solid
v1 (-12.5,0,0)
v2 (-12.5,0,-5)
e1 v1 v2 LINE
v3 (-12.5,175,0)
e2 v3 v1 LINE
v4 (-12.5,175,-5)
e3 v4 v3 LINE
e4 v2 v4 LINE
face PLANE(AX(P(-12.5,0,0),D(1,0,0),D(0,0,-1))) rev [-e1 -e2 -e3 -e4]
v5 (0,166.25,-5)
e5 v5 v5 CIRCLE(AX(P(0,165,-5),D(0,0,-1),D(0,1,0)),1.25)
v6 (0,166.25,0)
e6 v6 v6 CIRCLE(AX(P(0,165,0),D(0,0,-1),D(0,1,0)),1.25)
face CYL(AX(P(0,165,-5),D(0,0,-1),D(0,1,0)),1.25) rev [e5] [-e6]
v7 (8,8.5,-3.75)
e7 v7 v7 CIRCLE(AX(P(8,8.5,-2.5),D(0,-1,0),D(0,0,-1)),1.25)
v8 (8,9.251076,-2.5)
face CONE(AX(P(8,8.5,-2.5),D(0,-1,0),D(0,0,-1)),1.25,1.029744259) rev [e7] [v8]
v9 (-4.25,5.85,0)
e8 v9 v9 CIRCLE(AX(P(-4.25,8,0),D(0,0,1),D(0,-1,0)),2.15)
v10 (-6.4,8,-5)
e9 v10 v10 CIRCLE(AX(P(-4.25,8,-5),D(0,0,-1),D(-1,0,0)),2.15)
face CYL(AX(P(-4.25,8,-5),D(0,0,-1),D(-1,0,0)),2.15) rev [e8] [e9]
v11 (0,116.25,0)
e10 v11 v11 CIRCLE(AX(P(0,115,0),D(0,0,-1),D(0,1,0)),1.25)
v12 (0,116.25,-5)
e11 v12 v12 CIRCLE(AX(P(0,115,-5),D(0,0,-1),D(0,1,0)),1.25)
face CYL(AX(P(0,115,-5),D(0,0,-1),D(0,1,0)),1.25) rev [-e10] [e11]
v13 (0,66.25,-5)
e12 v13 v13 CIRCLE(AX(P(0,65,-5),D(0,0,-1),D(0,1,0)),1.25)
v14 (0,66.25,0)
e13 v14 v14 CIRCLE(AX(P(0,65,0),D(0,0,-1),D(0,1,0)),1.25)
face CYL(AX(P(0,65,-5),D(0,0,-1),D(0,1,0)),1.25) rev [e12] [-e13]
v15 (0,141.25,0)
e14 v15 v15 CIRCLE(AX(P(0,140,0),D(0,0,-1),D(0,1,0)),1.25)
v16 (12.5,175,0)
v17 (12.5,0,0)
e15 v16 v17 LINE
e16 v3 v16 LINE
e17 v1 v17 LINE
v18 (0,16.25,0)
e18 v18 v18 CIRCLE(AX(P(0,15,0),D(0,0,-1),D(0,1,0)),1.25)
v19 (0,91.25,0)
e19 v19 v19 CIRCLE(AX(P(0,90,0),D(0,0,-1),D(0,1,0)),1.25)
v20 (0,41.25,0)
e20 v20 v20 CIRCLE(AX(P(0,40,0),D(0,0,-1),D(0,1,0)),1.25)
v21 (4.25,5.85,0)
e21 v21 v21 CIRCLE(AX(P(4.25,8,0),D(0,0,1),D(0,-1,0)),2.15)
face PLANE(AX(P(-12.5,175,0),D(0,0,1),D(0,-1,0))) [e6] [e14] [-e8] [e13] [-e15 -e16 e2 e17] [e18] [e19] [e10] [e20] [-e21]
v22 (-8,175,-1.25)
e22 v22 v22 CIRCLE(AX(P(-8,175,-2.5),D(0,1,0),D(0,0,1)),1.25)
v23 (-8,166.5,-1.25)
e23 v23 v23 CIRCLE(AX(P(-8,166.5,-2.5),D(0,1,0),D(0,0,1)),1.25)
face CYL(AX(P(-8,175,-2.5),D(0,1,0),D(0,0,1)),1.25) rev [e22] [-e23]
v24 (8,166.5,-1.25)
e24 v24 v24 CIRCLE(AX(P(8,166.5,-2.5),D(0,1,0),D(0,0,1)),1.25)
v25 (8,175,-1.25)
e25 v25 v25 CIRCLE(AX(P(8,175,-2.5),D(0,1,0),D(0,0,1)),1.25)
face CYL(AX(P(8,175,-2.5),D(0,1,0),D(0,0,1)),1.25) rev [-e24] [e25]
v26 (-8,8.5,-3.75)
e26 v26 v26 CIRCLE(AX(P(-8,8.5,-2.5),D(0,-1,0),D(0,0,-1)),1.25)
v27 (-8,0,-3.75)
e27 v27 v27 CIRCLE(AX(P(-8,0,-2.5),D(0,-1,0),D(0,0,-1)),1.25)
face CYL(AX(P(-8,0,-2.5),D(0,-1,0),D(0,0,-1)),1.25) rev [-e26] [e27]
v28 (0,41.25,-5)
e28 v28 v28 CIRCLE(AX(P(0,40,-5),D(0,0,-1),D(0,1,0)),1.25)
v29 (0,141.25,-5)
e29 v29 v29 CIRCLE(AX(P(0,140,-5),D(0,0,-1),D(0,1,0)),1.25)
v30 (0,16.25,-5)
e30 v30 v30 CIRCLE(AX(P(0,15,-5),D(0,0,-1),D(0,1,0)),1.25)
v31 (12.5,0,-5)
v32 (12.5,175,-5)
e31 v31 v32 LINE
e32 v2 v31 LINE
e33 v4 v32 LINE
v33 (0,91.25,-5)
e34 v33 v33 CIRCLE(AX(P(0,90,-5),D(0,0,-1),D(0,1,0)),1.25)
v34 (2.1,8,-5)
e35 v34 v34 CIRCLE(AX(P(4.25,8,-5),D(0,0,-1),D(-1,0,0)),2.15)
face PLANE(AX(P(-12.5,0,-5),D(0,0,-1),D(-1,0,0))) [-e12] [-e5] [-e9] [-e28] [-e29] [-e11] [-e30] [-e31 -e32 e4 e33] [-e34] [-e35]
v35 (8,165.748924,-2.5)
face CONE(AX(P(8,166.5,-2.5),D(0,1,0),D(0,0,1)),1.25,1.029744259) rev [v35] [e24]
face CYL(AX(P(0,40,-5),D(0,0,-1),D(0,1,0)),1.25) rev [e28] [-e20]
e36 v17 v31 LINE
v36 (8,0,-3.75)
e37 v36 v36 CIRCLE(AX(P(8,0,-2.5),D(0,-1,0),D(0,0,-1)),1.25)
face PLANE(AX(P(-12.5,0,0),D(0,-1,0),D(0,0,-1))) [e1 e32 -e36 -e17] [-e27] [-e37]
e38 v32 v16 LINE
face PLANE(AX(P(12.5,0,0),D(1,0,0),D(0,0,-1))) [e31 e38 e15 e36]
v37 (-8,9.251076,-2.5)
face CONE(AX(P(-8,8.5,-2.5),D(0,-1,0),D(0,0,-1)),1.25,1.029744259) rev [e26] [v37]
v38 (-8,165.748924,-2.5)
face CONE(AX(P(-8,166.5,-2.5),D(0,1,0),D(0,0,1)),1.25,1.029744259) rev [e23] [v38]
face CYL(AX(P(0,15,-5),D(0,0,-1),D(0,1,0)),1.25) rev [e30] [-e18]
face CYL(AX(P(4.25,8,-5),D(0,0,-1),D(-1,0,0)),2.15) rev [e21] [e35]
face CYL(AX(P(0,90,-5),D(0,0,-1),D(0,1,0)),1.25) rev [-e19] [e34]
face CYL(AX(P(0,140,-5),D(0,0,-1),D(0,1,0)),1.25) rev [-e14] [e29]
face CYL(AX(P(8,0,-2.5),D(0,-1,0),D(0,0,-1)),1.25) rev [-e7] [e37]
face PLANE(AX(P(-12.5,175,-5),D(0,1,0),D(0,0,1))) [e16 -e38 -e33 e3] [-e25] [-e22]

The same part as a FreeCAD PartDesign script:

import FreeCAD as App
import Part
import Sketcher

V = App.Vector
Q = App.Units.Quantity


def add_polygon(sketch, points):
    """Adds a closed chain of lines whose ends are joined by coincident constraints."""
    first, n = sketch.GeometryCount, len(points)
    for a, b in zip(points, points[1:] + points[:1]):
        sketch.addGeometry(Part.LineSegment(App.Vector(*a, 0), App.Vector(*b, 0)), False)
    for i in range(n):
        sketch.addConstraint(Sketcher.Constraint("Coincident", first + i, 2, first + (i + 1) % n, 1))

doc = App.newDocument("Part")
params = doc.addObject("Spreadsheet::Sheet", "Params")
for row, (alias, value) in enumerate([
    ("sketch1_width", "175 mm"),
    ("sketch1_height", "5 mm"),
    ("pad1_length", "12.5 mm"),
    ("pad1_length2", "12.5 mm"),
    ("sketch2_diameter", "2.5 mm"),
    ("hole_diameter", "2.5 mm"),
    ("sketch3_diameter", "2.5 mm"),
    ("hole2_diameter", "2.5 mm"),
    ("hole2_depth", "8.5 mm"),
    ("sketch4_diameter", "2.5 mm"),
    ("hole3_diameter", "2.5 mm"),
    ("hole3_depth", "8.5 mm"),
    ("sketch5_diameter", "4.3 mm"),
    ("hole4_diameter", "4.3 mm"),
], start=1):
    params.set(f"A{row}", alias)
    params.set(f"B{row}", "=" + value)
    params.setAlias(f"B{row}", alias)

body = doc.addObject("PartDesign::Body", "Body")

sketch1 = doc.addObject("Sketcher::SketchObject", "Sketch")
body.addObject(sketch1)
sketch1.AttachmentSupport = (doc.YZ_Plane, [""])
sketch1.MapMode = "FlatFace"
add_polygon(sketch1, [(175, 0), (0, 0), (0, -5), (175, -5)])
sketch1.addConstraint(Sketcher.Constraint("Horizontal", 0))
sketch1.addConstraint(Sketcher.Constraint("Vertical", 1))
sketch1.addConstraint(Sketcher.Constraint("Horizontal", 2))
sketch1.addConstraint(Sketcher.Constraint("Vertical", 3))
sketch1.addConstraint(Sketcher.Constraint("Coincident", 0, 2, -1, 1))
sketch1.addConstraint(Sketcher.Constraint("DistanceX", 0, 2, 0, 1, Q("175 mm")))
sketch1.addConstraint(Sketcher.Constraint("DistanceY", 1, 2, 1, 1, Q("5 mm")))
sketch1.setExpression("Constraints[9]", "Params.sketch1_width")
sketch1.setExpression("Constraints[10]", "Params.sketch1_height")
pad1 = doc.addObject("PartDesign::Pad", "Pad")
body.addObject(pad1)
pad1.Profile = sketch1
pad1.Type = "TwoLengths"
pad1.setExpression("Length", "Params.pad1_length")
pad1.setExpression("Length2", "Params.pad1_length2")

sketch2 = doc.addObject("Sketcher::SketchObject", "Sketch001")
body.addObject(sketch2)
sketch2.AttachmentSupport = (doc.XY_Plane, [""])
sketch2.MapMode = "FlatFace"
sketch2.AttachmentOffset = App.Placement(V(0, 0, -5), App.Rotation())
sketch2.addGeometry(Part.Circle(V(0, 15, 0), V(0, 0, 1), 1.25), False)
sketch2.addGeometry(Part.Circle(V(0, 165, 0), V(0, 0, 1), 1.25), False)
sketch2.addGeometry(Part.Circle(V(0, 140, 0), V(0, 0, 1), 1.25), False)
sketch2.addGeometry(Part.Circle(V(0, 115, 0), V(0, 0, 1), 1.25), False)
sketch2.addGeometry(Part.Circle(V(0, 90, 0), V(0, 0, 1), 1.25), False)
sketch2.addGeometry(Part.Circle(V(0, 65, 0), V(0, 0, 1), 1.25), False)
sketch2.addGeometry(Part.Circle(V(0, 40, 0), V(0, 0, 1), 1.25), False)
sketch2.addConstraint(Sketcher.Constraint("Equal", 0, 1))
sketch2.addConstraint(Sketcher.Constraint("Equal", 1, 2))
sketch2.addConstraint(Sketcher.Constraint("Equal", 2, 3))
sketch2.addConstraint(Sketcher.Constraint("Equal", 3, 4))
sketch2.addConstraint(Sketcher.Constraint("Equal", 4, 5))
sketch2.addConstraint(Sketcher.Constraint("Equal", 5, 6))
sketch2.addConstraint(Sketcher.Constraint("PointOnObject", 0, 3, -2))
sketch2.addConstraint(Sketcher.Constraint("PointOnObject", 1, 3, -2))
sketch2.addConstraint(Sketcher.Constraint("PointOnObject", 2, 3, -2))
sketch2.addConstraint(Sketcher.Constraint("PointOnObject", 3, 3, -2))
sketch2.addConstraint(Sketcher.Constraint("PointOnObject", 4, 3, -2))
sketch2.addConstraint(Sketcher.Constraint("PointOnObject", 5, 3, -2))
sketch2.addConstraint(Sketcher.Constraint("PointOnObject", 6, 3, -2))
sketch2.addConstraint(Sketcher.Constraint("Diameter", 0, Q("2.5 mm")))
sketch2.addConstraint(Sketcher.Constraint("DistanceY", -1, 1, 0, 3, Q("15 mm")))
sketch2.addConstraint(Sketcher.Constraint("DistanceY", -1, 1, 1, 3, Q("165 mm")))
sketch2.addConstraint(Sketcher.Constraint("DistanceY", -1, 1, 2, 3, Q("140 mm")))
sketch2.addConstraint(Sketcher.Constraint("DistanceY", -1, 1, 3, 3, Q("115 mm")))
sketch2.addConstraint(Sketcher.Constraint("DistanceY", -1, 1, 4, 3, Q("90 mm")))
sketch2.addConstraint(Sketcher.Constraint("DistanceY", -1, 1, 5, 3, Q("65 mm")))
sketch2.addConstraint(Sketcher.Constraint("DistanceY", -1, 1, 6, 3, Q("40 mm")))
sketch2.setExpression("Constraints[13]", "Params.sketch2_diameter")
doc.recompute()
hole = doc.addObject("PartDesign::Hole", "Hole")
body.addObject(hole)
hole.Profile = sketch2
hole.ThreadType = "None"
hole.setExpression("Diameter", "Params.hole_diameter")
hole.DepthType = "ThroughAll"
hole.Reversed = True

sketch3 = doc.addObject("Sketcher::SketchObject", "Sketch002")
body.addObject(sketch3)
sketch3.AttachmentSupport = (doc.XZ_Plane, [""])
sketch3.MapMode = "FlatFace"
sketch3.AttachmentOffset = App.Placement(V(0, 0, -175), App.Rotation())
sketch3.addGeometry(Part.Circle(V(8, -2.5, 0), V(0, 0, 1), 1.25), False)
sketch3.addGeometry(Part.Circle(V(-8, -2.5, 0), V(0, 0, 1), 1.25), False)
sketch3.addConstraint(Sketcher.Constraint("Equal", 0, 1))
sketch3.addConstraint(Sketcher.Constraint("Symmetric", 0, 3, 1, 3, -2))
sketch3.addConstraint(Sketcher.Constraint("Diameter", 0, Q("2.5 mm")))
sketch3.addConstraint(Sketcher.Constraint("DistanceX", -1, 1, 0, 3, Q("8 mm")))
sketch3.addConstraint(Sketcher.Constraint("DistanceY", 0, 3, -1, 1, Q("2.5 mm")))
sketch3.setExpression("Constraints[2]", "Params.sketch3_diameter")
doc.recompute()
hole2 = doc.addObject("PartDesign::Hole", "Hole001")
body.addObject(hole2)
hole2.Profile = sketch3
hole2.ThreadType = "None"
hole2.setExpression("Diameter", "Params.hole2_diameter")
hole2.DepthType = "Dimension"
hole2.setExpression("Depth", "Params.hole2_depth")
hole2.DrillPoint = "Angled"
hole2.DrillPointAngle = 118
hole2.Reversed = True

sketch4 = doc.addObject("Sketcher::SketchObject", "Sketch003")
body.addObject(sketch4)
sketch4.AttachmentSupport = (doc.XZ_Plane, [""])
sketch4.MapMode = "FlatFace"
sketch4.addGeometry(Part.Circle(V(-8, -2.5, 0), V(0, 0, 1), 1.25), False)
sketch4.addGeometry(Part.Circle(V(8, -2.5, 0), V(0, 0, 1), 1.25), False)
sketch4.addConstraint(Sketcher.Constraint("Equal", 0, 1))
sketch4.addConstraint(Sketcher.Constraint("Symmetric", 0, 3, 1, 3, -2))
sketch4.addConstraint(Sketcher.Constraint("Diameter", 0, Q("2.5 mm")))
sketch4.addConstraint(Sketcher.Constraint("DistanceX", 0, 3, -1, 1, Q("8 mm")))
sketch4.addConstraint(Sketcher.Constraint("DistanceY", 0, 3, -1, 1, Q("2.5 mm")))
sketch4.setExpression("Constraints[2]", "Params.sketch4_diameter")
doc.recompute()
hole3 = doc.addObject("PartDesign::Hole", "Hole002")
body.addObject(hole3)
hole3.Profile = sketch4
hole3.ThreadType = "None"
hole3.setExpression("Diameter", "Params.hole3_diameter")
hole3.DepthType = "Dimension"
hole3.setExpression("Depth", "Params.hole3_depth")
hole3.DrillPoint = "Angled"
hole3.DrillPointAngle = 118

sketch5 = doc.addObject("Sketcher::SketchObject", "Sketch004")
body.addObject(sketch5)
sketch5.AttachmentSupport = (doc.XY_Plane, [""])
sketch5.MapMode = "FlatFace"
sketch5.AttachmentOffset = App.Placement(V(0, 0, -5), App.Rotation())
sketch5.addGeometry(Part.Circle(V(4.25, 8, 0), V(0, 0, 1), 2.15), False)
sketch5.addGeometry(Part.Circle(V(-4.25, 8, 0), V(0, 0, 1), 2.15), False)
sketch5.addConstraint(Sketcher.Constraint("Equal", 0, 1))
sketch5.addConstraint(Sketcher.Constraint("Symmetric", 0, 3, 1, 3, -2))
sketch5.addConstraint(Sketcher.Constraint("Diameter", 0, Q("4.3 mm")))
sketch5.addConstraint(Sketcher.Constraint("DistanceY", -1, 1, 0, 3, Q("8 mm")))
sketch5.addConstraint(Sketcher.Constraint("DistanceX", 1, 3, 0, 3, Q("8.5 mm")))
sketch5.setExpression("Constraints[2]", "Params.sketch5_diameter")
doc.recompute()
hole4 = doc.addObject("PartDesign::Hole", "Hole003")
body.addObject(hole4)
hole4.Profile = sketch5
hole4.ThreadType = "None"
hole4.setExpression("Diameter", "Params.hole4_diameter")
hole4.DepthType = "ThroughAll"
hole4.Reversed = True

doc.recompute()
